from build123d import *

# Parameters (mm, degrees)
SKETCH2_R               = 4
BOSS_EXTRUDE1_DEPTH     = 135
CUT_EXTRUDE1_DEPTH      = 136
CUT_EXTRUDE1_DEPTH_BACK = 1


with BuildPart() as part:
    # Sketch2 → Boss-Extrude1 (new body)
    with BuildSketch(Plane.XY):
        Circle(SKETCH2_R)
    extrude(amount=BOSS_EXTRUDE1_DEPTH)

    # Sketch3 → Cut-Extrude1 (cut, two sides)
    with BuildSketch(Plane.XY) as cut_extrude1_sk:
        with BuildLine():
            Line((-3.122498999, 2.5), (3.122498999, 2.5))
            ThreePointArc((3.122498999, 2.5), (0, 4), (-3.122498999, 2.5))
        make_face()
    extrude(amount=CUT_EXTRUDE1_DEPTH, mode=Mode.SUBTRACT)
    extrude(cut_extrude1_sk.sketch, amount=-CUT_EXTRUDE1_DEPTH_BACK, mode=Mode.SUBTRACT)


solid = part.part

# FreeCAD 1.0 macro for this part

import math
import FreeCAD as App
import Part
import Sketcher

doc = App.newDocument("Part")
body = doc.addObject("PartDesign::Body", "Body")

sketch1 = doc.addObject("Sketcher::SketchObject", "Sketch")
body.addObject(sketch1)
sketch1.AttachmentSupport = (doc.XY_Plane, [""])
sketch1.MapMode = "FlatFace"
sketch1.addGeometry(Part.Circle(App.Vector(0, 0, 0), App.Vector(0, 0, 1), 4), False)
sketch1.addConstraint([
    Sketcher.Constraint("Coincident", 0, 3, -1, 1),
    Sketcher.Constraint("Diameter", 0, 8.0),
])
pad1 = doc.addObject("PartDesign::Pad", "Pad")
body.addObject(pad1)
pad1.Profile = sketch1
pad1.Length = 135

sketch2 = doc.addObject("Sketcher::SketchObject", "Sketch001")
body.addObject(sketch2)
sketch2.AttachmentSupport = (doc.XY_Plane, [""])
sketch2.MapMode = "FlatFace"
sketch2.addGeometry([
    Part.LineSegment(App.Vector(-3.122499, 2.5, 0), App.Vector(3.122499, 2.5, 0)),
    Part.ArcOfCircle(Part.Circle(App.Vector(0, 0, 0), App.Vector(0, 0, 1), 4), math.radians(38.682187), math.radians(141.317813)),
], False)
sketch2.addConstraint([
    Sketcher.Constraint("Coincident", 0, 1, 1, 2),
    Sketcher.Constraint("Coincident", 1, 1, 0, 2),
    Sketcher.Constraint("Horizontal", 0),
    Sketcher.Constraint("Coincident", 1, 3, -1, 1),
    Sketcher.Constraint("Radius", 1, 4.0),
    Sketcher.Constraint("DistanceY", -1, 1, 0, 1, 2.5),
])
pocket1 = doc.addObject("PartDesign::Pocket", "Pocket")
body.addObject(pocket1)
pocket1.Profile = sketch2
pocket1.Type = "ThroughAll"
pocket1.Midplane = True

doc.recompute()
